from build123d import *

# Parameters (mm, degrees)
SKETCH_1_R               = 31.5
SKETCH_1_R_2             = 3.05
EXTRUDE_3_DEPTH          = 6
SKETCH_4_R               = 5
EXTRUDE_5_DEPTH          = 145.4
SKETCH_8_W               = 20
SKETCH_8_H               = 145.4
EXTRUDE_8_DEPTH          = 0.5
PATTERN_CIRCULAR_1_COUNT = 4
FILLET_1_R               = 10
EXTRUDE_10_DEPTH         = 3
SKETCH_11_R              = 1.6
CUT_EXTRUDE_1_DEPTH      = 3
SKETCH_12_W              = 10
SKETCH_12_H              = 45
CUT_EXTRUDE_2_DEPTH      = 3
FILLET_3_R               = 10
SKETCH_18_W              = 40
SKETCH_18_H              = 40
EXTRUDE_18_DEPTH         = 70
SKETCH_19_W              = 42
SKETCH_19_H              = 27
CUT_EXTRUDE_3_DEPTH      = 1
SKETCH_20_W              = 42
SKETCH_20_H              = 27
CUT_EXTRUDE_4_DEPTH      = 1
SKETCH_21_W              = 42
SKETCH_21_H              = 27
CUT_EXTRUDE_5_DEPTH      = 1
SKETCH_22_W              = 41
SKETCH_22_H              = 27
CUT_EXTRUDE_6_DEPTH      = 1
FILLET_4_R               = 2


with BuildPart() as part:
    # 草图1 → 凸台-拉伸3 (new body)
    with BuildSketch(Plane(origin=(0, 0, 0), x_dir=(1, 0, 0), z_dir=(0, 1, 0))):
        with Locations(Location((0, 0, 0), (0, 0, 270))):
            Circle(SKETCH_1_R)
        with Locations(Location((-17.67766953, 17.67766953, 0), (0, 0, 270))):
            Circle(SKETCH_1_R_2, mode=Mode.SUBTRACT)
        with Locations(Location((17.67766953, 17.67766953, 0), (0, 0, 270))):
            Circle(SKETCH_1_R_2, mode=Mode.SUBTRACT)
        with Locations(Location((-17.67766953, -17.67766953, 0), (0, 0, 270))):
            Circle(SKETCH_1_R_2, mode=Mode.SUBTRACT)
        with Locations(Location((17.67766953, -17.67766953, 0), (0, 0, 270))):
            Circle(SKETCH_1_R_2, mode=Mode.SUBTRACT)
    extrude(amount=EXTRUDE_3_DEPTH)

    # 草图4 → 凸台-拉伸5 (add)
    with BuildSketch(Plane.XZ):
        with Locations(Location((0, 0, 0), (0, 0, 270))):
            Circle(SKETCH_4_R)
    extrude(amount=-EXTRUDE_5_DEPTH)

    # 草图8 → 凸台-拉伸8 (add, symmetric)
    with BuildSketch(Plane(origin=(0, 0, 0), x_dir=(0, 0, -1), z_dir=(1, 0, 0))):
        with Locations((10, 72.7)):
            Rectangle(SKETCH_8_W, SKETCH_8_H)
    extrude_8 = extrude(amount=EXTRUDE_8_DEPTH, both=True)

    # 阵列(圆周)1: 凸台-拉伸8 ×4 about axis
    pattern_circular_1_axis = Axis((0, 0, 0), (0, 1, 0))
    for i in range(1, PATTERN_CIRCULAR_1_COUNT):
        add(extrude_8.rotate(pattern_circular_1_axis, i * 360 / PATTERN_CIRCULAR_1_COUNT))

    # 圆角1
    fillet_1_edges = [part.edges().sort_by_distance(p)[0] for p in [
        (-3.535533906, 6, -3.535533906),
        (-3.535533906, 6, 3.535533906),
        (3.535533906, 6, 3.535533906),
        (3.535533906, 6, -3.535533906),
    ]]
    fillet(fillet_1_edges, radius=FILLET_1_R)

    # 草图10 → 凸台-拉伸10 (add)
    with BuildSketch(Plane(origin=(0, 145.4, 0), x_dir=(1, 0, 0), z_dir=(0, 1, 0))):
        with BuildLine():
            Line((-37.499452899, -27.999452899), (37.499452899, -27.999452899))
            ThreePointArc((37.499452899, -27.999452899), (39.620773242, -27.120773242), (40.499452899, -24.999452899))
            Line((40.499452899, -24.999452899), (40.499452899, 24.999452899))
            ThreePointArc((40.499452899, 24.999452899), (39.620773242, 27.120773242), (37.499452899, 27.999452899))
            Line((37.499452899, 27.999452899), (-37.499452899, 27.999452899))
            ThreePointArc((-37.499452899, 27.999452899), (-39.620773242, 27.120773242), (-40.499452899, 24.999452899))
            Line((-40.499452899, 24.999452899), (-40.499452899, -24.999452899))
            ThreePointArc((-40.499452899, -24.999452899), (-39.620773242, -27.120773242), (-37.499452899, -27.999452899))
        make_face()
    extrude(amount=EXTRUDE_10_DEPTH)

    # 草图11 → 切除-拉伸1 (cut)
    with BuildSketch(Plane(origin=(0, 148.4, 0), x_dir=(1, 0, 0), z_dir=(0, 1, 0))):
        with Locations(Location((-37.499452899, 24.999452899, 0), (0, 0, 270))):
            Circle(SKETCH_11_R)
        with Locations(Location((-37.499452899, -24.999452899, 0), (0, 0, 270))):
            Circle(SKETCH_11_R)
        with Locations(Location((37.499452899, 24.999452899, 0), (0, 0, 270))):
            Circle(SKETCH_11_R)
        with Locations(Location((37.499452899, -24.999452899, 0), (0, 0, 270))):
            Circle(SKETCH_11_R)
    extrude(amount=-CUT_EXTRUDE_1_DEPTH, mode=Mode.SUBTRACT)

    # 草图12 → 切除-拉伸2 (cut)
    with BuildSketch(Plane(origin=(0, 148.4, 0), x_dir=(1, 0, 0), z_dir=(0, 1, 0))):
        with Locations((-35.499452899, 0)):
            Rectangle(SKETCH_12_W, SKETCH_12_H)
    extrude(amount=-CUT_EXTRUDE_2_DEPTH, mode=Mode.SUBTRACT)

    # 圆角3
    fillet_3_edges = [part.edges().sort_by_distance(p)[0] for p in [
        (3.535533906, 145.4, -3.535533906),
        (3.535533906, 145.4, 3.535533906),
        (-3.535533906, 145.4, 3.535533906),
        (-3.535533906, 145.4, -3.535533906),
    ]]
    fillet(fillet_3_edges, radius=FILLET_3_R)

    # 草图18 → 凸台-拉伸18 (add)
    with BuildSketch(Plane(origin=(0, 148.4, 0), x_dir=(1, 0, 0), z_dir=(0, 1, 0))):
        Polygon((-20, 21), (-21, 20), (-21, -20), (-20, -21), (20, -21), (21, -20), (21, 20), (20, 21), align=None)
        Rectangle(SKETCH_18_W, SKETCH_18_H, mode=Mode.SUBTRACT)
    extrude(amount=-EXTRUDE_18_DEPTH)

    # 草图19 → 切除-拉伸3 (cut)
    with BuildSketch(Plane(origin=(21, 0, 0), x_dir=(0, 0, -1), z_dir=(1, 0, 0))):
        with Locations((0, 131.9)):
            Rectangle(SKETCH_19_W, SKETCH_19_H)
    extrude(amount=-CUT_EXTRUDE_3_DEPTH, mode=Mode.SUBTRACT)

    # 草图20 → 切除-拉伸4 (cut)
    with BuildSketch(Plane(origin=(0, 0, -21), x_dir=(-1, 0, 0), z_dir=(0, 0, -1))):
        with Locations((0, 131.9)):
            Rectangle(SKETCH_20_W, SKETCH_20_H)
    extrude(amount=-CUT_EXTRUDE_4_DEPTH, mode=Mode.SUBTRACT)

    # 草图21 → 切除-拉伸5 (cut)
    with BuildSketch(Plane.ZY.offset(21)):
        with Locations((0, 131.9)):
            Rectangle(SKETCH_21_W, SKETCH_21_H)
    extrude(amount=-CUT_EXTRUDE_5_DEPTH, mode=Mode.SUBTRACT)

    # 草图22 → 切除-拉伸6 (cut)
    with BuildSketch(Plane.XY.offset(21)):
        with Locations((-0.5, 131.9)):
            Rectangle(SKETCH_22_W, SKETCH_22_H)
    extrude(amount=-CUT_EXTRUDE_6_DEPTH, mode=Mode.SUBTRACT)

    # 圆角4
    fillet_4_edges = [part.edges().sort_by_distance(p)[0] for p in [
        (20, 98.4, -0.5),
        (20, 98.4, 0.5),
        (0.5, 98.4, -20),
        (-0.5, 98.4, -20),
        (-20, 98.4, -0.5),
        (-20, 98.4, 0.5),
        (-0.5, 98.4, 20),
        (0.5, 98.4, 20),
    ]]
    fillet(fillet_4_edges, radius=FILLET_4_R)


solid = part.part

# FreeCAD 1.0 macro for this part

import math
import FreeCAD as App
import Part
import Sketcher


def edges_at(feature, points):
    """Names of the edges that pass closest to the given points."""
    edges = feature.Shape.Edges
    near = lambda p: min(range(len(edges)), key=lambda i: edges[i].distToShape(Part.Vertex(*p))[0])
    return sorted({f"Edge{near(p) + 1}" for p in points})


def add_polygon(sketch, points):
    """Adds a closed chain of lines whose ends are joined by coincident constraints."""
    first, n = sketch.GeometryCount, len(points)
    for a, b in zip(points, points[1:] + points[:1]):
        sketch.addGeometry(Part.LineSegment(App.Vector(*a, 0), App.Vector(*b, 0)), False)
    for i in range(n):
        sketch.addConstraint(Sketcher.Constraint("Coincident", first + i, 2, first + (i + 1) % n, 1))

doc = App.newDocument("Part")
body = doc.addObject("PartDesign::Body", "Body")

# Sketch on XZ plane
sketch1 = doc.addObject("Sketcher::SketchObject", "Sketch")
body.addObject(sketch1)
sketch1.AttachmentSupport = (doc.XZ_Plane, [""])
sketch1.MapMode = "FlatFace"
sketch1.addGeometry([
    Part.Circle(App.Vector(0, 0, 0), App.Vector(0, 0, 1), 31.5),  # 0
    Part.Circle(App.Vector(-17.7, -17.7, 0), App.Vector(0, 0, 1), 3),  # 1
    Part.Circle(App.Vector(-17.7, 17.7, 0), App.Vector(0, 0, 1), 3),  # 2
    Part.Circle(App.Vector(17.7, -17.7, 0), App.Vector(0, 0, 1), 3),  # 3
    Part.Circle(App.Vector(17.7, 17.7, 0), App.Vector(0, 0, 1), 3),  # 4
], False)
sketch1.addConstraint([
    Sketcher.Constraint("Coincident", 0, 3, -1, 1),
    Sketcher.Constraint("Equal", 1, 2),
    Sketcher.Constraint("Equal", 2, 3),
    Sketcher.Constraint("Equal", 3, 4),
    Sketcher.Constraint("Symmetric", 2, 3, 3, 3, -1, 1),
    Sketcher.Constraint("Symmetric", 1, 3, 4, 3, -1, 1),
    Sketcher.Constraint("Symmetric", 1, 3, 3, 3, -2),
    Sketcher.Constraint("Diameter", 0, 63.0),
    Sketcher.Constraint("Diameter", 1, 6.1),
    Sketcher.Constraint("DistanceX", 1, 3, -1, 1, 17.67767),
    Sketcher.Constraint("DistanceY", 1, 3, -1, 1, 17.67767),
])
pad1 = doc.addObject("PartDesign::Pad", "Pad")
body.addObject(pad1)
pad1.Profile = sketch1
pad1.Length = 6
pad1.Reversed = True

# Sketch on XZ plane
sketch2 = doc.addObject("Sketcher::SketchObject", "Sketch001")
body.addObject(sketch2)
sketch2.AttachmentSupport = (doc.XZ_Plane, [""])
sketch2.MapMode = "FlatFace"
sketch2.addGeometry(Part.Circle(App.Vector(0, 0, 0), App.Vector(0, 0, 1), 5), False)
sketch2.addConstraint([
    Sketcher.Constraint("Coincident", 0, 3, -1, 1),
    Sketcher.Constraint("Diameter", 0, 10.0),
])
pad2 = doc.addObject("PartDesign::Pad", "Pad001")
body.addObject(pad2)
pad2.Profile = sketch2
pad2.Length = 145.4
pad2.Reversed = True

# Sketch on YZ plane
sketch3 = doc.addObject("Sketcher::SketchObject", "Sketch002")
body.addObject(sketch3)
sketch3.AttachmentSupport = (doc.YZ_Plane, [""])
sketch3.MapMode = "FlatFace"
add_polygon(sketch3, [(145, 0), (0, 0), (0, -20), (145, -20)])  # lines 0-3
sketch3.addConstraint([
    Sketcher.Constraint("Horizontal", 0),
    Sketcher.Constraint("Vertical", 1),
    Sketcher.Constraint("Horizontal", 2),
    Sketcher.Constraint("Vertical", 3),
    Sketcher.Constraint("Coincident", 0, 2, -1, 1),
    Sketcher.Constraint("DistanceY", 1, 2, 1, 1, 20.0),
    Sketcher.Constraint("DistanceX", 0, 2, 0, 1, 145.4),
])
pad3 = doc.addObject("PartDesign::Pad", "Pad002")
body.addObject(pad3)
pad3.Profile = sketch3
pad3.Length = 1
pad3.Midplane = True
doc.recompute()

polarpattern = doc.addObject("PartDesign::PolarPattern", "PolarPattern")
body.addObject(polarpattern)
polarpattern.Originals = [pad3]
polarpattern.Axis = (doc.Y_Axis, [""])
polarpattern.Angle = 360
polarpattern.Occurrences = 4
body.Tip = polarpattern
doc.recompute()

fillet = doc.addObject("PartDesign::Fillet", "Fillet")
body.addObject(fillet)
fillet.Base = (polarpattern, edges_at(polarpattern, [
    (-3.536, 6, -3.536),
    (-3.536, 6, 3.536),
    (3.536, 6, 3.536),
    (3.536, 6, -3.536),
]))
fillet.Radius = 10

# Sketch on XZ plane
sketch4 = doc.addObject("Sketcher::SketchObject", "Sketch003")
body.addObject(sketch4)
sketch4.AttachmentSupport = (doc.XZ_Plane, [""])
sketch4.MapMode = "FlatFace"
sketch4.AttachmentOffset = App.Placement(App.Vector(0, 0, -145.4), App.Rotation())
sketch4.addGeometry([
    Part.LineSegment(App.Vector(-37.5, 28, 0), App.Vector(37.5, 28, 0)),  # 0
    Part.ArcOfCircle(Part.Circle(App.Vector(37.5, 25, 0), App.Vector(0, 0, 1), 3), math.radians(0), math.radians(90)),  # 1
    Part.LineSegment(App.Vector(40.5, 25, 0), App.Vector(40.5, -25, 0)),  # 2
    Part.ArcOfCircle(Part.Circle(App.Vector(37.5, -25, 0), App.Vector(0, 0, 1), 3), math.radians(-90), math.radians(0)),  # 3
    Part.LineSegment(App.Vector(37.5, -28, 0), App.Vector(-37.5, -28, 0)),  # 4
    Part.ArcOfCircle(Part.Circle(App.Vector(-37.5, -25, 0), App.Vector(0, 0, 1), 3), math.radians(-180), math.radians(-90)),  # 5
    Part.LineSegment(App.Vector(-40.5, -25, 0), App.Vector(-40.5, 25, 0)),  # 6
    Part.ArcOfCircle(Part.Circle(App.Vector(-37.5, 25, 0), App.Vector(0, 0, 1), 3), math.radians(90), math.radians(180)),  # 7
], False)
sketch4.addConstraint([
    Sketcher.Constraint("Tangent", 0, 2, 1, 2),
    Sketcher.Constraint("Tangent", 1, 1, 2, 1),
    Sketcher.Constraint("Tangent", 2, 2, 3, 2),
    Sketcher.Constraint("Tangent", 3, 1, 4, 1),
    Sketcher.Constraint("Tangent", 4, 2, 5, 2),
    Sketcher.Constraint("Tangent", 5, 1, 6, 1),
    Sketcher.Constraint("Tangent", 6, 2, 7, 2),
    Sketcher.Constraint("Tangent", 7, 1, 0, 1),
    Sketcher.Constraint("Horizontal", 0),
    Sketcher.Constraint("Vertical", 2),
    Sketcher.Constraint("Horizontal", 4),
    Sketcher.Constraint("Vertical", 6),
    Sketcher.Constraint("Equal", 1, 3),
    Sketcher.Constraint("Equal", 3, 5),
    Sketcher.Constraint("Equal", 5, 7),
    Sketcher.Constraint("Symmetric", 1, 3, 5, 3, -1, 1),
    Sketcher.Constraint("Radius", 1, 3.0),
    Sketcher.Constraint("DistanceX", 0, 1, 0, 2, 74.998906),
    Sketcher.Constraint("DistanceY", 2, 2, 2, 1, 49.998906),
])
pad4 = doc.addObject("PartDesign::Pad", "Pad003")
body.addObject(pad4)
pad4.Profile = sketch4
pad4.Length = 3
pad4.Reversed = True

# Sketch on XZ plane
sketch5 = doc.addObject("Sketcher::SketchObject", "Sketch004")
body.addObject(sketch5)
sketch5.AttachmentSupport = (doc.XZ_Plane, [""])
sketch5.MapMode = "FlatFace"
sketch5.AttachmentOffset = App.Placement(App.Vector(0, 0, -148.4), App.Rotation())
sketch5.addGeometry([
    Part.Circle(App.Vector(-37.5, -25, 0), App.Vector(0, 0, 1), 1.6),
    Part.Circle(App.Vector(-37.5, 25, 0), App.Vector(0, 0, 1), 1.6),
    Part.Circle(App.Vector(37.5, -25, 0), App.Vector(0, 0, 1), 1.6),
    Part.Circle(App.Vector(37.5, 25, 0), App.Vector(0, 0, 1), 1.6),
], False)
sketch5.addConstraint([
    Sketcher.Constraint("Equal", 0, 1),
    Sketcher.Constraint("Equal", 1, 2),
    Sketcher.Constraint("Equal", 2, 3),
    Sketcher.Constraint("Symmetric", 1, 3, 2, 3, -1, 1),
    Sketcher.Constraint("Symmetric", 0, 3, 3, 3, -1, 1),
    Sketcher.Constraint("Symmetric", 0, 3, 2, 3, -2),
    Sketcher.Constraint("Diameter", 0, 3.2),
    Sketcher.Constraint("DistanceX", 0, 3, -1, 1, 37.499453),
    Sketcher.Constraint("DistanceY", 0, 3, -1, 1, 24.999453),
])
pocket1 = doc.addObject("PartDesign::Pocket", "Pocket")
body.addObject(pocket1)
pocket1.Profile = sketch5
pocket1.Length = 3
pocket1.Reversed = True

# Sketch on XZ plane
sketch6 = doc.addObject("Sketcher::SketchObject", "Sketch005")
body.addObject(sketch6)
sketch6.AttachmentSupport = (doc.XZ_Plane, [""])
sketch6.MapMode = "FlatFace"
sketch6.AttachmentOffset = App.Placement(App.Vector(0, 0, -148.4), App.Rotation())
add_polygon(sketch6, [(-40, -22), (-40, 22), (-30, 22), (-30, -22)])  # lines 0-3
sketch6.addConstraint([
    Sketcher.Constraint("Vertical", 0),
    Sketcher.Constraint("Horizontal", 1),
    Sketcher.Constraint("Vertical", 2),
    Sketcher.Constraint("Horizontal", 3),
    Sketcher.Constraint("DistanceX", 1, 1, 1, 2, 10.0),
    Sketcher.Constraint("DistanceY", 0, 1, 0, 2, 45.0),
    Sketcher.Constraint("DistanceY", -1, 1, 0, 2, 22.5),
    Sketcher.Constraint("DistanceX", 0, 2, -1, 1, 40.499453),
])
pocket2 = doc.addObject("PartDesign::Pocket", "Pocket001")
body.addObject(pocket2)
pocket2.Profile = sketch6
pocket2.Length = 3
pocket2.Reversed = True
doc.recompute()

fillet2 = doc.addObject("PartDesign::Fillet", "Fillet001")
body.addObject(fillet2)
fillet2.Base = (pocket2, edges_at(pocket2, [
    (3.536, 145.4, -3.536),
    (3.536, 145.4, 3.536),
    (-3.536, 145.4, 3.536),
    (-3.536, 145.4, -3.536),
]))
fillet2.Radius = 10

# Sketch on XZ plane
sketch7 = doc.addObject("Sketcher::SketchObject", "Sketch006")
body.addObject(sketch7)
sketch7.AttachmentSupport = (doc.XZ_Plane, [""])
sketch7.MapMode = "FlatFace"
sketch7.AttachmentOffset = App.Placement(App.Vector(0, 0, -148.4), App.Rotation())
add_polygon(sketch7, [(-20, -21), (-21, -20), (-21, 20), (-20, 21), (20, 21), (21, 20), (21, -20), (20, -21)])  # lines 0-7
add_polygon(sketch7, [(20, 20), (-20, 20), (-20, -20), (20, -20)])  # lines 8-11
sketch7.addConstraint([
    Sketcher.Constraint("Vertical", 1),
    Sketcher.Constraint("Horizontal", 3),
    Sketcher.Constraint("Vertical", 5),
    Sketcher.Constraint("Horizontal", 7),
    Sketcher.Constraint("Horizontal", 8),
    Sketcher.Constraint("Vertical", 9),
    Sketcher.Constraint("Horizontal", 10),
    Sketcher.Constraint("Vertical", 11),
    Sketcher.Constraint("Symmetric", 0, 2, 4, 2, -1, 1),
    Sketcher.Constraint("Symmetric", 2, 2, 6, 2, -1, 1),
    Sketcher.Constraint("Symmetric", 8, 2, 10, 2, -1, 1),
    Sketcher.Constraint("Perpendicular", 0, 2),
    Sketcher.Constraint("Perpendicular", 2, 4),
    Sketcher.Constraint("Perpendicular", 4, 6),
    Sketcher.Constraint("Horizontal", 1, 2, 4, 2),
    Sketcher.Constraint("Horizontal", 4, 2, 8, 2),
    Sketcher.Constraint("Vertical", 3, 2, 6, 2),
    Sketcher.Constraint("Vertical", 7, 2, 8, 2),
    Sketcher.Constraint("Equal", 10, 1),
    Sketcher.Constraint("DistanceX", 3, 1, 3, 2, 40.0),
    Sketcher.Constraint("DistanceX", 0, 2, -1, 1, 21.0),
])
pad5 = doc.addObject("PartDesign::Pad", "Pad004")
body.addObject(pad5)
pad5.Profile = sketch7
pad5.Length = 70

# Sketch on YZ plane
sketch8 = doc.addObject("Sketcher::SketchObject", "Sketch007")
body.addObject(sketch8)
sketch8.AttachmentSupport = (doc.YZ_Plane, [""])
sketch8.MapMode = "FlatFace"
sketch8.AttachmentOffset = App.Placement(App.Vector(0, 0, 21), App.Rotation())
add_polygon(sketch8, [(145, 21), (118, 21), (118, -21), (145, -21)])  # lines 0-3
sketch8.addConstraint([
    Sketcher.Constraint("Horizontal", 0),
    Sketcher.Constraint("Vertical", 1),
    Sketcher.Constraint("Horizontal", 2),
    Sketcher.Constraint("Vertical", 3),
    Sketcher.Constraint("DistanceX", 0, 2, 0, 1, 27.0),
    Sketcher.Constraint("DistanceY", 1, 2, 1, 1, 42.0),
    Sketcher.Constraint("DistanceY", -1, 1, 0, 2, 21.0),
    Sketcher.Constraint("DistanceX", -1, 1, 0, 2, 118.4),
])
pocket3 = doc.addObject("PartDesign::Pocket", "Pocket002")
body.addObject(pocket3)
pocket3.Profile = sketch8
pocket3.Length = 1

# Sketch on XY plane
sketch9 = doc.addObject("Sketcher::SketchObject", "Sketch008")
body.addObject(sketch9)
sketch9.AttachmentSupport = (doc.XY_Plane, [""])
sketch9.MapMode = "FlatFace"
sketch9.AttachmentOffset = App.Placement(App.Vector(0, 0, -21), App.Rotation())
add_polygon(sketch9, [(21, 145), (21, 118), (-21, 118), (-21, 145)])  # lines 0-3
sketch9.addConstraint([
    Sketcher.Constraint("Vertical", 0),
    Sketcher.Constraint("Horizontal", 1),
    Sketcher.Constraint("Vertical", 2),
    Sketcher.Constraint("Horizontal", 3),
    Sketcher.Constraint("DistanceX", 1, 2, 1, 1, 42.0),
    Sketcher.Constraint("DistanceY", 0, 2, 0, 1, 27.0),
    Sketcher.Constraint("DistanceX", -1, 1, 0, 2, 21.0),
    Sketcher.Constraint("DistanceY", -1, 1, 0, 2, 118.4),
])
pocket4 = doc.addObject("PartDesign::Pocket", "Pocket003")
body.addObject(pocket4)
pocket4.Profile = sketch9
pocket4.Length = 1
pocket4.Reversed = True

# Sketch on YZ plane
sketch10 = doc.addObject("Sketcher::SketchObject", "Sketch009")
body.addObject(sketch10)
sketch10.AttachmentSupport = (doc.YZ_Plane, [""])
sketch10.MapMode = "FlatFace"
sketch10.AttachmentOffset = App.Placement(App.Vector(0, 0, -21), App.Rotation())
add_polygon(sketch10, [(145, -21), (118, -21), (118, 21), (145, 21)])  # lines 0-3
sketch10.addConstraint([
    Sketcher.Constraint("Horizontal", 0),
    Sketcher.Constraint("Vertical", 1),
    Sketcher.Constraint("Horizontal", 2),
    Sketcher.Constraint("Vertical", 3),
    Sketcher.Constraint("DistanceX", 0, 2, 0, 1, 27.0),
    Sketcher.Constraint("DistanceY", 1, 1, 1, 2, 42.0),
    Sketcher.Constraint("DistanceY", 0, 2, -1, 1, 21.0),
    Sketcher.Constraint("DistanceX", -1, 1, 0, 2, 118.4),
])
pocket5 = doc.addObject("PartDesign::Pocket", "Pocket004")
body.addObject(pocket5)
pocket5.Profile = sketch10
pocket5.Length = 1
pocket5.Reversed = True

# Sketch on XY plane
sketch11 = doc.addObject("Sketcher::SketchObject", "Sketch010")
body.addObject(sketch11)
sketch11.AttachmentSupport = (doc.XY_Plane, [""])
sketch11.MapMode = "FlatFace"
sketch11.AttachmentOffset = App.Placement(App.Vector(0, 0, 21), App.Rotation())
add_polygon(sketch11, [(-21, 145), (-21, 118), (20, 118), (20, 145)])  # lines 0-3
sketch11.addConstraint([
    Sketcher.Constraint("Vertical", 0),
    Sketcher.Constraint("Horizontal", 1),
    Sketcher.Constraint("Vertical", 2),
    Sketcher.Constraint("Horizontal", 3),
    Sketcher.Constraint("DistanceX", 1, 1, 1, 2, 41.0),
    Sketcher.Constraint("DistanceY", 0, 2, 0, 1, 27.0),
    Sketcher.Constraint("DistanceX", 0, 2, -1, 1, 21.0),
    Sketcher.Constraint("DistanceY", -1, 1, 0, 2, 118.4),
])
pocket6 = doc.addObject("PartDesign::Pocket", "Pocket005")
body.addObject(pocket6)
pocket6.Profile = sketch11
pocket6.Length = 1
doc.recompute()

fillet3 = doc.addObject("PartDesign::Fillet", "Fillet002")
body.addObject(fillet3)
fillet3.Base = (pocket6, edges_at(pocket6, [
    (20, 98.4, -0.5),
    (20, 98.4, 0.5),
    (0.5, 98.4, -20),
    (-0.5, 98.4, -20),
    (-20, 98.4, -0.5),
    (-20, 98.4, 0.5),
    (-0.5, 98.4, 20),
    (0.5, 98.4, 20),
]))
fillet3.Radius = 2

doc.recompute()
